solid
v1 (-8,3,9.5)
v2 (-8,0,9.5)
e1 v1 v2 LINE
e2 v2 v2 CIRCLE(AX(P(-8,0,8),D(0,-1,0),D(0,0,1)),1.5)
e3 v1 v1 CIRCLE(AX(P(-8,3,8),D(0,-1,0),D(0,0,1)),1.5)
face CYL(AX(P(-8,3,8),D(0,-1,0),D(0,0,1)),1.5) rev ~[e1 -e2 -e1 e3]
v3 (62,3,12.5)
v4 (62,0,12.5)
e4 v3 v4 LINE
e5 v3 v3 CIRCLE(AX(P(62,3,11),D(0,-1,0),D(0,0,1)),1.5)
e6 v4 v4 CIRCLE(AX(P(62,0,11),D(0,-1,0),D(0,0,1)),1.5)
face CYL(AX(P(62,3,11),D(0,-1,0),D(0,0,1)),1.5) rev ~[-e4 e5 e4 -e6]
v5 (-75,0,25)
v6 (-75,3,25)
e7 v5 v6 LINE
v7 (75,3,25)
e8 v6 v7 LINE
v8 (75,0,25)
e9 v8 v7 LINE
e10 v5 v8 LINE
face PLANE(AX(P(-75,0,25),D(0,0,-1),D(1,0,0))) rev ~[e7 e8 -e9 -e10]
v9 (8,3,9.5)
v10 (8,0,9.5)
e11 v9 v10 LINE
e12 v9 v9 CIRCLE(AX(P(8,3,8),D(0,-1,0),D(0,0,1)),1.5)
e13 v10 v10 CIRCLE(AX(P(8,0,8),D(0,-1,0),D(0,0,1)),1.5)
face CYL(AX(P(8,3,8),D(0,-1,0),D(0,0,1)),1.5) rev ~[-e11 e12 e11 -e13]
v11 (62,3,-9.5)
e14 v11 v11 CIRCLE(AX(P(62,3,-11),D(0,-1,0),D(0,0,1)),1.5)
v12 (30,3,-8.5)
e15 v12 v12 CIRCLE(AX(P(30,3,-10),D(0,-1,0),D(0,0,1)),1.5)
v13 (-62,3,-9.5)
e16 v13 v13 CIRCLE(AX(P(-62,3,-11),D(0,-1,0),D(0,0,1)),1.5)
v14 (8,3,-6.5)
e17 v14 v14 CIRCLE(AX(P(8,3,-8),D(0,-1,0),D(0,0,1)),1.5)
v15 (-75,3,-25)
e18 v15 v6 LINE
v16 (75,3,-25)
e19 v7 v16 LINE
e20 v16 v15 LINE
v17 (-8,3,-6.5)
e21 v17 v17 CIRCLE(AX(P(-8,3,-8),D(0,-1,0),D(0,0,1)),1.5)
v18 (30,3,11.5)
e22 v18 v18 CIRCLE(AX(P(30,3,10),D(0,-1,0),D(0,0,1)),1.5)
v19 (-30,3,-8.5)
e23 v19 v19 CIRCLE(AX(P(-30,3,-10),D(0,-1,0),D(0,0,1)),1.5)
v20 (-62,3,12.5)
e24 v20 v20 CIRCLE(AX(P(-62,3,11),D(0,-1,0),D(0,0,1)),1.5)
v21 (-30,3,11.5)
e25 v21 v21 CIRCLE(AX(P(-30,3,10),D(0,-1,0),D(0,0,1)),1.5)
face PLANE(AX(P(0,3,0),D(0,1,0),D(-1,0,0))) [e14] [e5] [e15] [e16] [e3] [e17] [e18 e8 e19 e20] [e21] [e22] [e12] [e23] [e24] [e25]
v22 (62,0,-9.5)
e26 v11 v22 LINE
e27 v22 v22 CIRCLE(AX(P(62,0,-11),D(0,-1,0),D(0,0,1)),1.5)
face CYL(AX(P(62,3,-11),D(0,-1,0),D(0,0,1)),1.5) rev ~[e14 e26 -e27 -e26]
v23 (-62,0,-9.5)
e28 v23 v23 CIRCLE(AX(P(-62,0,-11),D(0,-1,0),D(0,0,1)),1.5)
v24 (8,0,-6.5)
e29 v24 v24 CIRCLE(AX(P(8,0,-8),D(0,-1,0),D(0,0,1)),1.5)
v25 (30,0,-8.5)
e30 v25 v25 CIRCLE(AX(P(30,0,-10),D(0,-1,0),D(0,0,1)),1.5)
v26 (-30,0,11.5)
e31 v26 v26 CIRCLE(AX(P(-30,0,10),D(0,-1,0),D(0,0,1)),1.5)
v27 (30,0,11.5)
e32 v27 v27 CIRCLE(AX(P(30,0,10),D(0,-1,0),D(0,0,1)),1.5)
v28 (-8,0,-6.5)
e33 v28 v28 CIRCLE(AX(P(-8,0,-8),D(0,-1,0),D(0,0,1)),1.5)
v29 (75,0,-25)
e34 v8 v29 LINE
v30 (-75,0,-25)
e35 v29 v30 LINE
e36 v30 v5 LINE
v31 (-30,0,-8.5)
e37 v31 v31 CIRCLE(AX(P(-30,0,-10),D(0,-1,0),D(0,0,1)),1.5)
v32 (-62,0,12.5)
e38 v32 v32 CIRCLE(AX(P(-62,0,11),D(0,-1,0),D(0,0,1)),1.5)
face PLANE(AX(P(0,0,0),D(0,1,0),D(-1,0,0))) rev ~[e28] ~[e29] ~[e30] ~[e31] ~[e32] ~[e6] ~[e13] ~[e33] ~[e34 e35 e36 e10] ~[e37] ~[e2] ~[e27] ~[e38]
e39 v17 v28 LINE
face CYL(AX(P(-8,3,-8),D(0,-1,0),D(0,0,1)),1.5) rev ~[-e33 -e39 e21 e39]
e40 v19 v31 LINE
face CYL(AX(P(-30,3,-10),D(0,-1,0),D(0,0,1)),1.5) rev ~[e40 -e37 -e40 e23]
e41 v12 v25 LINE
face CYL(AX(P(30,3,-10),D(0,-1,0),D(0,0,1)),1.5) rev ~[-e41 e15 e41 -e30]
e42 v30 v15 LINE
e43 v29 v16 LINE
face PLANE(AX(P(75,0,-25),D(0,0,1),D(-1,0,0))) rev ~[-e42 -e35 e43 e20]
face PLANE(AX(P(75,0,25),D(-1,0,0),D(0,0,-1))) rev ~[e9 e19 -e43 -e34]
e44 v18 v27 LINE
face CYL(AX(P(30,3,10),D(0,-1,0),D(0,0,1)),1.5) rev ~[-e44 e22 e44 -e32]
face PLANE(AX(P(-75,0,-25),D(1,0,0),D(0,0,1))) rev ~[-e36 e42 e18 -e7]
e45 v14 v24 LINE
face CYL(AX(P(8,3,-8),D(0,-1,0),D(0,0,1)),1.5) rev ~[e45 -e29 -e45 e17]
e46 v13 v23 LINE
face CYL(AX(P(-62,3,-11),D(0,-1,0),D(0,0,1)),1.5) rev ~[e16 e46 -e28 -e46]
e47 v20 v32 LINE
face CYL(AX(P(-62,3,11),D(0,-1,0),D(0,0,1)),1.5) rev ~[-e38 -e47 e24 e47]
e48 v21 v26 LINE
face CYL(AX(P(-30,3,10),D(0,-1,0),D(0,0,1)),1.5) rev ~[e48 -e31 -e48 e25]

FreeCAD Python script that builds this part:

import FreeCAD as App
import Part
import Sketcher


def add_polygon(sketch, points):
    """Adds a closed chain of lines whose ends are joined by coincident constraints."""
    first, n = sketch.GeometryCount, len(points)
    for a, b in zip(points, points[1:] + points[:1]):
        sketch.addGeometry(Part.LineSegment(App.Vector(*a, 0), App.Vector(*b, 0)), False)
    for i in range(n):
        sketch.addConstraint(Sketcher.Constraint("Coincident", first + i, 2, first + (i + 1) % n, 1))

doc = App.newDocument("Part")
body = doc.addObject("PartDesign::Body", "Body")

# Sketch on XZ plane
sketch1 = doc.addObject("Sketcher::SketchObject", "Sketch")
body.addObject(sketch1)
sketch1.AttachmentSupport = (doc.XZ_Plane, [""])
sketch1.MapMode = "FlatFace"
add_polygon(sketch1, [(-75, -25), (-75, 25), (75, 25), (75, -25)])  # lines 0-3
sketch1.addConstraint([
    Sketcher.Constraint("Vertical", 0),
    Sketcher.Constraint("Horizontal", 1),
    Sketcher.Constraint("Vertical", 2),
    Sketcher.Constraint("Horizontal", 3),
    Sketcher.Constraint("Symmetric", 0, 2, 2, 2, -1, 1),
    Sketcher.Constraint("DistanceX", 1, 1, 1, 2, 150.0),
    Sketcher.Constraint("DistanceY", 0, 1, 0, 2, 50.0),
])
pad1 = doc.addObject("PartDesign::Pad", "Pad")
body.addObject(pad1)
pad1.Profile = sketch1
pad1.Length = 3
pad1.Reversed = True

# Sketch on XZ plane
sketch2 = doc.addObject("Sketcher::SketchObject", "Sketch001")
body.addObject(sketch2)
sketch2.AttachmentSupport = (doc.XZ_Plane, [""])
sketch2.MapMode = "FlatFace"
sketch2.AttachmentOffset = App.Placement(App.Vector(0, 0, -3), App.Rotation())
sketch2.addGeometry([
    Part.Circle(App.Vector(-30, -10, 0), App.Vector(0, 0, 1), 1.5),
    Part.Circle(App.Vector(30, -10, 0), App.Vector(0, 0, 1), 1.5),
    Part.Circle(App.Vector(-30, 10, 0), App.Vector(0, 0, 1), 1.5),
    Part.Circle(App.Vector(30, 10, 0), App.Vector(0, 0, 1), 1.5),
], False)
sketch2.addConstraint([
    Sketcher.Constraint("Equal", 0, 1),
    Sketcher.Constraint("Equal", 1, 2),
    Sketcher.Constraint("Equal", 2, 3),
    Sketcher.Constraint("Symmetric", 1, 3, 2, 3, -1, 1),
    Sketcher.Constraint("Symmetric", 0, 3, 3, 3, -1, 1),
    Sketcher.Constraint("Symmetric", 0, 3, 1, 3, -2),
    Sketcher.Constraint("Diameter", 0, 3.0),
    Sketcher.Constraint("DistanceX", 0, 3, -1, 1, 30.0),
    Sketcher.Constraint("DistanceY", 0, 3, -1, 1, 10.0),
])
doc.recompute()
hole = doc.addObject("PartDesign::Hole", "Hole")
body.addObject(hole)
hole.Profile = sketch2
hole.ThreadType = "None"
hole.Diameter = 3
hole.DepthType = "Dimension"
hole.Depth = 8
hole.DrillPoint = "Angled"
hole.DrillPointAngle = 118
hole.Reversed = True

# Sketch on XZ plane
sketch3 = doc.addObject("Sketcher::SketchObject", "Sketch002")
body.addObject(sketch3)
sketch3.AttachmentSupport = (doc.XZ_Plane, [""])
sketch3.MapMode = "FlatFace"
sketch3.AttachmentOffset = App.Placement(App.Vector(0, 0, -3), App.Rotation())
sketch3.addGeometry([
    Part.Circle(App.Vector(62, -11, 0), App.Vector(0, 0, 1), 1.5),
    Part.Circle(App.Vector(62, 11, 0), App.Vector(0, 0, 1), 1.5),
    Part.Circle(App.Vector(-62, -11, 0), App.Vector(0, 0, 1), 1.5),
    Part.Circle(App.Vector(-62, 11, 0), App.Vector(0, 0, 1), 1.5),
], False)
sketch3.addConstraint([
    Sketcher.Constraint("Equal", 0, 1),
    Sketcher.Constraint("Equal", 1, 2),
    Sketcher.Constraint("Equal", 2, 3),
    Sketcher.Constraint("Symmetric", 1, 3, 2, 3, -1, 1),
    Sketcher.Constraint("Symmetric", 0, 3, 3, 3, -1, 1),
    Sketcher.Constraint("Symmetric", 0, 3, 2, 3, -2),
    Sketcher.Constraint("Diameter", 0, 3.0),
    Sketcher.Constraint("DistanceX", -1, 1, 0, 3, 62.0),
    Sketcher.Constraint("DistanceY", 0, 3, -1, 1, 11.0),
])
doc.recompute()
hole2 = doc.addObject("PartDesign::Hole", "Hole001")
body.addObject(hole2)
hole2.Profile = sketch3
hole2.ThreadType = "None"
hole2.Diameter = 3
hole2.DepthType = "Dimension"
hole2.Depth = 8
hole2.DrillPoint = "Angled"
hole2.DrillPointAngle = 118
hole2.Reversed = True

# Sketch on XZ plane
sketch4 = doc.addObject("Sketcher::SketchObject", "Sketch003")
body.addObject(sketch4)
sketch4.AttachmentSupport = (doc.XZ_Plane, [""])
sketch4.MapMode = "FlatFace"
sketch4.AttachmentOffset = App.Placement(App.Vector(0, 0, -3), App.Rotation())
sketch4.addGeometry([
    Part.Circle(App.Vector(-8, -8, 0), App.Vector(0, 0, 1), 1.5),
    Part.Circle(App.Vector(8, -8, 0), App.Vector(0, 0, 1), 1.5),
    Part.Circle(App.Vector(8, 8, 0), App.Vector(0, 0, 1), 1.5),
    Part.Circle(App.Vector(-8, 8, 0), App.Vector(0, 0, 1), 1.5),
], False)
sketch4.addConstraint([
    Sketcher.Constraint("Equal", 0, 1),
    Sketcher.Constraint("Equal", 1, 2),
    Sketcher.Constraint("Equal", 2, 3),
    Sketcher.Constraint("Symmetric", 0, 3, 2, 3, -1, 1),
    Sketcher.Constraint("Symmetric", 1, 3, 3, 3, -1, 1),
    Sketcher.Constraint("Symmetric", 0, 3, 1, 3, -2),
    Sketcher.Constraint("Diameter", 0, 3.0),
    Sketcher.Constraint("DistanceX", 0, 3, -1, 1, 8.0),
    Sketcher.Constraint("DistanceY", 0, 3, -1, 1, 8.0),
])
doc.recompute()
hole3 = doc.addObject("PartDesign::Hole", "Hole002")
body.addObject(hole3)
hole3.Profile = sketch4
hole3.ThreadType = "None"
hole3.Diameter = 3
hole3.DepthType = "Dimension"
hole3.Depth = 8
hole3.DrillPoint = "Angled"
hole3.DrillPointAngle = 118
hole3.Reversed = True

doc.recompute()
